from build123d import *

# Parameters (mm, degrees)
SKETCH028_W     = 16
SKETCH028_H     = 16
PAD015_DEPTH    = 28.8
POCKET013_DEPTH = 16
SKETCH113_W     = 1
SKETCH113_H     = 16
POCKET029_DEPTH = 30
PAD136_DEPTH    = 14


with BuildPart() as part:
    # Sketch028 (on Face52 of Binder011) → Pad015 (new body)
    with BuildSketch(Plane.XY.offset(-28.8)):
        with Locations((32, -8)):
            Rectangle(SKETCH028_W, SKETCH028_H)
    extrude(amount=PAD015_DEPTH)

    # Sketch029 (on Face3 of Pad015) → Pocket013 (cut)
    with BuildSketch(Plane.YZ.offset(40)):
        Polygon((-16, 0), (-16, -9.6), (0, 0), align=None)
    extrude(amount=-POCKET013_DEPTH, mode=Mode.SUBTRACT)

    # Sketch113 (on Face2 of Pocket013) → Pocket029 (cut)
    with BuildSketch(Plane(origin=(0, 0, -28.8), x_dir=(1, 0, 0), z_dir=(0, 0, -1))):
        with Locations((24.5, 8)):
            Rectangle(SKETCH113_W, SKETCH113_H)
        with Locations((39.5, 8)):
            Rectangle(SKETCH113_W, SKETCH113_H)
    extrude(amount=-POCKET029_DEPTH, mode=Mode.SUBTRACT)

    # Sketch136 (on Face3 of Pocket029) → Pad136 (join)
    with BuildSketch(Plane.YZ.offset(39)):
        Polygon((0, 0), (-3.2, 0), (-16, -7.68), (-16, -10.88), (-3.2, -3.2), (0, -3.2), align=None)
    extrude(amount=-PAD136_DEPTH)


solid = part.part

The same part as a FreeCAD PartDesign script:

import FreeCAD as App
import Part
import Sketcher
from FreeCAD import Vector
Q = App.Units.Quantity


def add_polygon(sketch, points):
    """Adds a closed chain of lines whose ends are joined by coincident constraints."""
    first, n = sketch.GeometryCount, len(points)
    for a, b in zip(points, points[1:] + points[:1]):
        sketch.addGeometry(Part.LineSegment(App.Vector(*a, 0), App.Vector(*b, 0)), False)
    for i in range(n):
        sketch.addConstraint(Sketcher.Constraint("Coincident", first + i, 2, first + (i + 1) % n, 1))

doc = App.newDocument("Part")
body = doc.addObject("PartDesign::Body", "Body")

sketch1 = body.newObject("Sketcher::SketchObject", "Sketch")
sketch1.AttachmentSupport = (doc.getObject("XY_Plane"), [""])
sketch1.MapMode = "FlatFace"
sketch1.AttachmentOffset = App.Placement(Vector(0, 0, -28.8), App.Rotation())
add_polygon(sketch1, [(24, 0), (24, -16), (40, -16), (40, 0)])
sketch1.addConstraint(Sketcher.Constraint("Vertical", 0))
sketch1.addConstraint(Sketcher.Constraint("Horizontal", 1))
sketch1.addConstraint(Sketcher.Constraint("Vertical", 2))
sketch1.addConstraint(Sketcher.Constraint("Horizontal", 3))
sketch1.addConstraint(Sketcher.Constraint("PointOnObject", 2, 2, -1))
sketch1.addConstraint(Sketcher.Constraint("Equal", 3, 0))
sketch1.addConstraint(Sketcher.Constraint("DistanceX", 1, 1, 1, 2, Q("16 mm")))
sketch1.addConstraint(Sketcher.Constraint("DistanceX", -1, 1, 0, 2, Q("24 mm")))
pad1 = body.newObject("PartDesign::Pad", "Pad")
pad1.Profile = sketch1
pad1.Length = 28.8

sketch2 = body.newObject("Sketcher::SketchObject", "Sketch001")
sketch2.AttachmentSupport = (doc.getObject("YZ_Plane"), [""])
sketch2.MapMode = "FlatFace"
sketch2.AttachmentOffset = App.Placement(Vector(0, 0, 40), App.Rotation())
add_polygon(sketch2, [(-16, 0), (-16, -9.6), (0, 0)])
sketch2.addConstraint(Sketcher.Constraint("Vertical", 0))
sketch2.addConstraint(Sketcher.Constraint("Horizontal", 2))
sketch2.addConstraint(Sketcher.Constraint("Coincident", 1, 2, -1, 1))
sketch2.addConstraint(Sketcher.Constraint("DistanceX", 2, 2, 2, 1, Q("16 mm")))
sketch2.addConstraint(Sketcher.Constraint("DistanceY", 0, 2, 0, 1, Q("9.6 mm")))
pocket1 = body.newObject("PartDesign::Pocket", "Pocket")
pocket1.Profile = sketch2
pocket1.Length = 16

sketch3 = body.newObject("Sketcher::SketchObject", "Sketch002")
sketch3.AttachmentSupport = (doc.getObject("XY_Plane"), [""])
sketch3.MapMode = "FlatFace"
sketch3.AttachmentOffset = App.Placement(Vector(0, 0, -28.8), App.Rotation())
add_polygon(sketch3, [(24, -16), (24, 0), (25, 0), (25, -16)])
add_polygon(sketch3, [(39, -16), (39, 0), (40, 0), (40, -16)])
sketch3.addConstraint(Sketcher.Constraint("Vertical", 0))
sketch3.addConstraint(Sketcher.Constraint("Horizontal", 1))
sketch3.addConstraint(Sketcher.Constraint("Vertical", 2))
sketch3.addConstraint(Sketcher.Constraint("Horizontal", 3))
sketch3.addConstraint(Sketcher.Constraint("Vertical", 4))
sketch3.addConstraint(Sketcher.Constraint("Horizontal", 5))
sketch3.addConstraint(Sketcher.Constraint("Vertical", 6))
sketch3.addConstraint(Sketcher.Constraint("Horizontal", 7))
sketch3.addConstraint(Sketcher.Constraint("PointOnObject", 0, 2, -1))
sketch3.addConstraint(Sketcher.Constraint("PointOnObject", 4, 2, -1))
sketch3.addConstraint(Sketcher.Constraint("Horizontal", 3, 2, 6, 2))
sketch3.addConstraint(Sketcher.Constraint("Equal", 3, 5))
sketch3.addConstraint(Sketcher.Constraint("DistanceX", 1, 1, 1, 2, Q("1 mm")))
sketch3.addConstraint(Sketcher.Constraint("DistanceY", 0, 1, 0, 2, Q("16 mm")))
sketch3.addConstraint(Sketcher.Constraint("DistanceX", -1, 1, 0, 2, Q("24 mm")))
sketch3.addConstraint(Sketcher.Constraint("DistanceX", -1, 1, 4, 2, Q("39 mm")))
pocket2 = body.newObject("PartDesign::Pocket", "Pocket001")
pocket2.Profile = sketch3
pocket2.Length = 30
pocket2.Reversed = True

sketch4 = body.newObject("Sketcher::SketchObject", "Sketch003")
sketch4.AttachmentSupport = (doc.getObject("YZ_Plane"), [""])
sketch4.MapMode = "FlatFace"
sketch4.AttachmentOffset = App.Placement(Vector(0, 0, 39), App.Rotation())
add_polygon(sketch4, [(0, 0), (-3.2, 0), (-16, -7.68), (-16, -10.88), (-3.2, -3.2), (0, -3.2)])
sketch4.addConstraint(Sketcher.Constraint("Horizontal", 0))
sketch4.addConstraint(Sketcher.Constraint("Vertical", 2))
sketch4.addConstraint(Sketcher.Constraint("Horizontal", 4))
sketch4.addConstraint(Sketcher.Constraint("Vertical", 5))
sketch4.addConstraint(Sketcher.Constraint("Coincident", 5, 2, -1, 1))
sketch4.addConstraint(Sketcher.Constraint("Parallel", 1, 3))
sketch4.addConstraint(Sketcher.Constraint("Vertical", 0, 2, 3, 2))
sketch4.addConstraint(Sketcher.Constraint("Equal", 4, 2))
sketch4.addConstraint(Sketcher.Constraint("DistanceX", 0, 2, 0, 1, Q("3.2 mm")))
sketch4.addConstraint(Sketcher.Constraint("DistanceX", 1, 2, -1, 1, Q("16 mm")))
sketch4.addConstraint(Sketcher.Constraint("DistanceY", 1, 2, -1, 1, Q("7.68 mm")))
pad2 = body.newObject("PartDesign::Pad", "Pad001")
pad2.Profile = sketch4
pad2.Length = 14
pad2.Reversed = True

doc.recompute()
